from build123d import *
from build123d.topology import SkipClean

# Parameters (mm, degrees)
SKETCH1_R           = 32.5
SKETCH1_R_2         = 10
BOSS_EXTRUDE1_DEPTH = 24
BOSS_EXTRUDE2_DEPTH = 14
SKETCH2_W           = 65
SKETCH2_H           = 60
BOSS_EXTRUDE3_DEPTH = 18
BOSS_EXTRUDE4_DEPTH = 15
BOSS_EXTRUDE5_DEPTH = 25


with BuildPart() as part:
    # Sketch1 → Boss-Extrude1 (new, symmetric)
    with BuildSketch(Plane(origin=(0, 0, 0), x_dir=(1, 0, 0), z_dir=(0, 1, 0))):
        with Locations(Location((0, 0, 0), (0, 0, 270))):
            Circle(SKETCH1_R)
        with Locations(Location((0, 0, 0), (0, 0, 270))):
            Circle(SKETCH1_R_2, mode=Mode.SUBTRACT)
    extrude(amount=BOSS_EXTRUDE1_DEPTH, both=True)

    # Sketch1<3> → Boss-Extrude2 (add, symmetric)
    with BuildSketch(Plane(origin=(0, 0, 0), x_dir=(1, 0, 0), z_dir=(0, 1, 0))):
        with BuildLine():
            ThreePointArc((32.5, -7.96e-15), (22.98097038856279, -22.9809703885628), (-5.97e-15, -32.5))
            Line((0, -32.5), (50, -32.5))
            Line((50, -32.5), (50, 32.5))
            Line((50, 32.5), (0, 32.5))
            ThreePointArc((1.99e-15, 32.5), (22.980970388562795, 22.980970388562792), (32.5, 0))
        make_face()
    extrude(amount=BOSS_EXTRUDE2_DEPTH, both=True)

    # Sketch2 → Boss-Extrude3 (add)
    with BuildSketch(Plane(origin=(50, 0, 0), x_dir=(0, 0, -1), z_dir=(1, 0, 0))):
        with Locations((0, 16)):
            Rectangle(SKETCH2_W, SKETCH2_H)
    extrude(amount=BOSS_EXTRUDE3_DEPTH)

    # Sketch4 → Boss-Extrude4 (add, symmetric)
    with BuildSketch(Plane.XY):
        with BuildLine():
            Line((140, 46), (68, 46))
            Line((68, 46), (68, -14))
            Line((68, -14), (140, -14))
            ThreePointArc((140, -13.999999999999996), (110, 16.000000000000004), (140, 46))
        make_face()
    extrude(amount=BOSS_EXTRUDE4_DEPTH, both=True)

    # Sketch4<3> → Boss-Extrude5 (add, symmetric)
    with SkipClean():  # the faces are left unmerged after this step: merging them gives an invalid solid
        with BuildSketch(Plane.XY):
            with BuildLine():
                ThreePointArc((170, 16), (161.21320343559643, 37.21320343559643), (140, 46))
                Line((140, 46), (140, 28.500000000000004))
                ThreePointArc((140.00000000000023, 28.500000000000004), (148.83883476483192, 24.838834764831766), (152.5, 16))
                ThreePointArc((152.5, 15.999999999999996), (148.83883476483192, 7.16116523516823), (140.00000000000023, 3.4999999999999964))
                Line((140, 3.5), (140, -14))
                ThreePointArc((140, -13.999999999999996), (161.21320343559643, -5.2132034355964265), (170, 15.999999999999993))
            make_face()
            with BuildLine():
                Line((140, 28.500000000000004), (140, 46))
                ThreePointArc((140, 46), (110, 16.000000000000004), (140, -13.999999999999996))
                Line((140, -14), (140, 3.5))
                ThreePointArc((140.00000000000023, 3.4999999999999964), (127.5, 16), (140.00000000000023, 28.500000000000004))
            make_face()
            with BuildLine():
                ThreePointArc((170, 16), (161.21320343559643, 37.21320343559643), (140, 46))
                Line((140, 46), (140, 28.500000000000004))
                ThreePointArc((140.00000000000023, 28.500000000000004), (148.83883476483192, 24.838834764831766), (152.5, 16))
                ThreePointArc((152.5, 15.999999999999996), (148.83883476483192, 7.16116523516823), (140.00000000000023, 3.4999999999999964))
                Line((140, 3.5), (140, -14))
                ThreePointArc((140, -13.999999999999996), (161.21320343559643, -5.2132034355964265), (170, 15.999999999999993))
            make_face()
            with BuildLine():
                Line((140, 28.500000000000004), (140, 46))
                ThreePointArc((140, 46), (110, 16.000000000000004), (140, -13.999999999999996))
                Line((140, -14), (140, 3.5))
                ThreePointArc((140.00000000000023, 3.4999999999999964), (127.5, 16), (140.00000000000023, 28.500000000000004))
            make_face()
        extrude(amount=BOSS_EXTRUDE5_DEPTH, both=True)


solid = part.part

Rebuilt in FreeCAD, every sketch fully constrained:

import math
import FreeCAD as App
import Part
import Sketcher

V = App.Vector
Q = App.Units.Quantity


def add_polygon(sketch, points):
    """Adds a closed chain of lines whose ends are joined by coincident constraints."""
    first, n = sketch.GeometryCount, len(points)
    for a, b in zip(points, points[1:] + points[:1]):
        sketch.addGeometry(Part.LineSegment(App.Vector(*a, 0), App.Vector(*b, 0)), False)
    for i in range(n):
        sketch.addConstraint(Sketcher.Constraint("Coincident", first + i, 2, first + (i + 1) % n, 1))

doc = App.newDocument("Part")
body = doc.addObject("PartDesign::Body", "Body")

sketch1 = body.newObject("Sketcher::SketchObject", "Sketch")
sketch1.AttachmentSupport = (doc.getObject("XZ_Plane"), [""])
sketch1.MapMode = "FlatFace"
sketch1.addGeometry([
    Part.Circle(V(0, 0, 0), V(0, 0, 1), 32),
    Part.Circle(V(0, 0, 0), V(0, 0, 1), 10),
], False)
sketch1.addConstraint([
    Sketcher.Constraint("Coincident", 0, 3, -1, 1),
    Sketcher.Constraint("Coincident", 1, 3, -1, 1),
    Sketcher.Constraint("Diameter", 0, Q("65 mm")),
    Sketcher.Constraint("Diameter", 1, Q("20 mm")),
])
pad1 = body.newObject("PartDesign::Pad", "Pad")
pad1.Profile = sketch1
pad1.Length = 48
pad1.Midplane = True

sketch2 = body.newObject("Sketcher::SketchObject", "Sketch001")
sketch2.AttachmentSupport = (doc.getObject("XZ_Plane"), [""])
sketch2.MapMode = "FlatFace"
sketch2.addGeometry([
    Part.LineSegment(V(0, 32, 0), V(50, 32, 0)),
    Part.LineSegment(V(50, 32, 0), V(50, -32, 0)),
    Part.LineSegment(V(50, -32, 0), V(0, -32, 0)),
    Part.ArcOfCircle(Part.Circle(V(0, 0, 0), V(0, 0, 1), 32), math.radians(-90), math.radians(90)),
], False)
sketch2.addConstraint([
    Sketcher.Constraint("Coincident", 0, 2, 1, 1),
    Sketcher.Constraint("Coincident", 1, 2, 2, 1),
    Sketcher.Constraint("Tangent", 2, 2, 3, 1),
    Sketcher.Constraint("Tangent", 3, 2, 0, 1),
    Sketcher.Constraint("Horizontal", 0),
    Sketcher.Constraint("Vertical", 1),
    Sketcher.Constraint("Horizontal", 2),
    Sketcher.Constraint("Coincident", 3, 3, -1, 1),
    Sketcher.Constraint("Radius", 3, Q("32.5 mm")),
    Sketcher.Constraint("DistanceX", 0, 1, 0, 2, Q("50 mm")),
])
pad2 = body.newObject("PartDesign::Pad", "Pad001")
pad2.Profile = sketch2
pad2.Length = 28
pad2.Midplane = True

sketch3 = body.newObject("Sketcher::SketchObject", "Sketch002")
sketch3.AttachmentSupport = (doc.getObject("YZ_Plane"), [""])
sketch3.MapMode = "FlatFace"
sketch3.AttachmentOffset = App.Placement(V(0, 0, 50), App.Rotation())
add_polygon(sketch3, [(46, 32), (-14, 32), (-14, -32), (46, -32)])
sketch3.addConstraint([
    Sketcher.Constraint("Horizontal", 0),
    Sketcher.Constraint("Vertical", 1),
    Sketcher.Constraint("Horizontal", 2),
    Sketcher.Constraint("Vertical", 3),
    Sketcher.Constraint("DistanceX", 0, 2, 0, 1, Q("60 mm")),
    Sketcher.Constraint("DistanceY", 1, 2, 1, 1, Q("65 mm")),
    Sketcher.Constraint("DistanceX", 0, 2, -1, 1, Q("14 mm")),
    Sketcher.Constraint("DistanceY", -1, 1, 0, 2, Q("32.5 mm")),
])
pad3 = body.newObject("PartDesign::Pad", "Pad002")
pad3.Profile = sketch3
pad3.Length = 18

sketch4 = body.newObject("Sketcher::SketchObject", "Sketch003")
sketch4.AttachmentSupport = (doc.getObject("XY_Plane"), [""])
sketch4.MapMode = "FlatFace"
sketch4.addGeometry([
    Part.LineSegment(V(140, 46, 0), V(68, 46, 0)),
    Part.LineSegment(V(68, 46, 0), V(68, -14, 0)),
    Part.LineSegment(V(68, -14, 0), V(140, -14, 0)),
    Part.ArcOfCircle(Part.Circle(V(140, 16, 0), V(0, 0, 1), 30), math.radians(90), math.radians(270)),
], False)
sketch4.addConstraint([
    Sketcher.Constraint("Coincident", 0, 2, 1, 1),
    Sketcher.Constraint("Coincident", 1, 2, 2, 1),
    Sketcher.Constraint("Tangent", 2, 2, 3, 2),
    Sketcher.Constraint("Tangent", 3, 1, 0, 1),
    Sketcher.Constraint("Horizontal", 0),
    Sketcher.Constraint("Vertical", 1),
    Sketcher.Constraint("Horizontal", 2),
    Sketcher.Constraint("Radius", 3, Q("30 mm")),
    Sketcher.Constraint("DistanceX", 0, 2, 0, 1, Q("72 mm")),
    Sketcher.Constraint("DistanceX", -1, 1, 3, 3, Q("140 mm")),
    Sketcher.Constraint("DistanceY", -1, 1, 3, 3, Q("16 mm")),
])
pad4 = body.newObject("PartDesign::Pad", "Pad003")
pad4.Profile = sketch4
pad4.Length = 30
pad4.Midplane = True

sketch5 = body.newObject("Sketcher::SketchObject", "Sketch004")
sketch5.AttachmentSupport = (doc.getObject("XY_Plane"), [""])
sketch5.MapMode = "FlatFace"
sketch5.addGeometry([
    Part.LineSegment(V(140, 46, 0), V(140, 28, 0)),
    Part.ArcOfCircle(Part.Circle(V(140, 16, 0), V(0, 0, 1), 12), math.radians(0), math.radians(90)),
    Part.ArcOfCircle(Part.Circle(V(140, 16, 0), V(0, 0, 1), 12), math.radians(-90), math.radians(0)),
    Part.LineSegment(V(140, 4, 0), V(140, -14, 0)),
    Part.ArcOfCircle(Part.Circle(V(140, 16, 0), V(0, 0, 1), 30), math.radians(-90), math.radians(0)),
    Part.ArcOfCircle(Part.Circle(V(140, 16, 0), V(0, 0, 1), 30), math.radians(0), math.radians(90)),
    Part.LineSegment(V(140, 28, 0), V(140, 46, 0)),
    Part.ArcOfCircle(Part.Circle(V(140, 16, 0), V(0, 0, 1), 30), math.radians(90), math.radians(270)),
    Part.LineSegment(V(140, -14, 0), V(140, 4, 0)),
    Part.ArcOfCircle(Part.Circle(V(140, 16, 0), V(0, 0, 1), 12), math.radians(90), math.radians(270)),
], False)
sketch5.addConstraint([
    Sketcher.Constraint("Coincident", 0, 2, 1, 2),
    Sketcher.Constraint("Tangent", 1, 1, 2, 2),
    Sketcher.Constraint("Coincident", 2, 1, 3, 1),
    Sketcher.Constraint("Coincident", 3, 2, 4, 1),
    Sketcher.Constraint("Tangent", 4, 2, 5, 1),
    Sketcher.Constraint("Coincident", 5, 2, 0, 1),
    Sketcher.Constraint("Coincident", 6, 2, 7, 1),
    Sketcher.Constraint("Coincident", 7, 2, 8, 1),
    Sketcher.Constraint("Coincident", 8, 2, 9, 2),
    Sketcher.Constraint("Coincident", 9, 1, 6, 1),
    Sketcher.Constraint("Vertical", 0),
    Sketcher.Constraint("Vertical", 3),
    Sketcher.Constraint("Vertical", 6),
    Sketcher.Constraint("Vertical", 8),
    Sketcher.Constraint("Coincident", 4, 3, 1, 3),
    Sketcher.Constraint("Coincident", 7, 3, 1, 3),
    Sketcher.Constraint("Coincident", 9, 3, 1, 3),
    Sketcher.Constraint("Coincident", 6, 2, 5, 2),
    Sketcher.Constraint("Coincident", 7, 2, 3, 2),
    Sketcher.Constraint("Equal", 1, 2),
    Sketcher.Constraint("Equal", 2, 9),
    Sketcher.Constraint("Horizontal", 9, 3, 1, 1),
    Sketcher.Constraint("Horizontal", 1, 1, 4, 2),
    Sketcher.Constraint("Vertical", 9, 3, 0, 2),
    Sketcher.Constraint("Vertical", 0, 2, 2, 1),
    Sketcher.Constraint("Radius", 4, Q("30 mm")),
    Sketcher.Constraint("Radius", 1, Q("12.5 mm")),
    Sketcher.Constraint("DistanceX", -1, 1, 1, 3, Q("140 mm")),
    Sketcher.Constraint("DistanceY", -1, 1, 1, 3, Q("16 mm")),
])
pad5 = body.newObject("PartDesign::Pad", "Pad004")
pad5.Profile = sketch5
pad5.Length = 50
pad5.Midplane = True

doc.recompute()
